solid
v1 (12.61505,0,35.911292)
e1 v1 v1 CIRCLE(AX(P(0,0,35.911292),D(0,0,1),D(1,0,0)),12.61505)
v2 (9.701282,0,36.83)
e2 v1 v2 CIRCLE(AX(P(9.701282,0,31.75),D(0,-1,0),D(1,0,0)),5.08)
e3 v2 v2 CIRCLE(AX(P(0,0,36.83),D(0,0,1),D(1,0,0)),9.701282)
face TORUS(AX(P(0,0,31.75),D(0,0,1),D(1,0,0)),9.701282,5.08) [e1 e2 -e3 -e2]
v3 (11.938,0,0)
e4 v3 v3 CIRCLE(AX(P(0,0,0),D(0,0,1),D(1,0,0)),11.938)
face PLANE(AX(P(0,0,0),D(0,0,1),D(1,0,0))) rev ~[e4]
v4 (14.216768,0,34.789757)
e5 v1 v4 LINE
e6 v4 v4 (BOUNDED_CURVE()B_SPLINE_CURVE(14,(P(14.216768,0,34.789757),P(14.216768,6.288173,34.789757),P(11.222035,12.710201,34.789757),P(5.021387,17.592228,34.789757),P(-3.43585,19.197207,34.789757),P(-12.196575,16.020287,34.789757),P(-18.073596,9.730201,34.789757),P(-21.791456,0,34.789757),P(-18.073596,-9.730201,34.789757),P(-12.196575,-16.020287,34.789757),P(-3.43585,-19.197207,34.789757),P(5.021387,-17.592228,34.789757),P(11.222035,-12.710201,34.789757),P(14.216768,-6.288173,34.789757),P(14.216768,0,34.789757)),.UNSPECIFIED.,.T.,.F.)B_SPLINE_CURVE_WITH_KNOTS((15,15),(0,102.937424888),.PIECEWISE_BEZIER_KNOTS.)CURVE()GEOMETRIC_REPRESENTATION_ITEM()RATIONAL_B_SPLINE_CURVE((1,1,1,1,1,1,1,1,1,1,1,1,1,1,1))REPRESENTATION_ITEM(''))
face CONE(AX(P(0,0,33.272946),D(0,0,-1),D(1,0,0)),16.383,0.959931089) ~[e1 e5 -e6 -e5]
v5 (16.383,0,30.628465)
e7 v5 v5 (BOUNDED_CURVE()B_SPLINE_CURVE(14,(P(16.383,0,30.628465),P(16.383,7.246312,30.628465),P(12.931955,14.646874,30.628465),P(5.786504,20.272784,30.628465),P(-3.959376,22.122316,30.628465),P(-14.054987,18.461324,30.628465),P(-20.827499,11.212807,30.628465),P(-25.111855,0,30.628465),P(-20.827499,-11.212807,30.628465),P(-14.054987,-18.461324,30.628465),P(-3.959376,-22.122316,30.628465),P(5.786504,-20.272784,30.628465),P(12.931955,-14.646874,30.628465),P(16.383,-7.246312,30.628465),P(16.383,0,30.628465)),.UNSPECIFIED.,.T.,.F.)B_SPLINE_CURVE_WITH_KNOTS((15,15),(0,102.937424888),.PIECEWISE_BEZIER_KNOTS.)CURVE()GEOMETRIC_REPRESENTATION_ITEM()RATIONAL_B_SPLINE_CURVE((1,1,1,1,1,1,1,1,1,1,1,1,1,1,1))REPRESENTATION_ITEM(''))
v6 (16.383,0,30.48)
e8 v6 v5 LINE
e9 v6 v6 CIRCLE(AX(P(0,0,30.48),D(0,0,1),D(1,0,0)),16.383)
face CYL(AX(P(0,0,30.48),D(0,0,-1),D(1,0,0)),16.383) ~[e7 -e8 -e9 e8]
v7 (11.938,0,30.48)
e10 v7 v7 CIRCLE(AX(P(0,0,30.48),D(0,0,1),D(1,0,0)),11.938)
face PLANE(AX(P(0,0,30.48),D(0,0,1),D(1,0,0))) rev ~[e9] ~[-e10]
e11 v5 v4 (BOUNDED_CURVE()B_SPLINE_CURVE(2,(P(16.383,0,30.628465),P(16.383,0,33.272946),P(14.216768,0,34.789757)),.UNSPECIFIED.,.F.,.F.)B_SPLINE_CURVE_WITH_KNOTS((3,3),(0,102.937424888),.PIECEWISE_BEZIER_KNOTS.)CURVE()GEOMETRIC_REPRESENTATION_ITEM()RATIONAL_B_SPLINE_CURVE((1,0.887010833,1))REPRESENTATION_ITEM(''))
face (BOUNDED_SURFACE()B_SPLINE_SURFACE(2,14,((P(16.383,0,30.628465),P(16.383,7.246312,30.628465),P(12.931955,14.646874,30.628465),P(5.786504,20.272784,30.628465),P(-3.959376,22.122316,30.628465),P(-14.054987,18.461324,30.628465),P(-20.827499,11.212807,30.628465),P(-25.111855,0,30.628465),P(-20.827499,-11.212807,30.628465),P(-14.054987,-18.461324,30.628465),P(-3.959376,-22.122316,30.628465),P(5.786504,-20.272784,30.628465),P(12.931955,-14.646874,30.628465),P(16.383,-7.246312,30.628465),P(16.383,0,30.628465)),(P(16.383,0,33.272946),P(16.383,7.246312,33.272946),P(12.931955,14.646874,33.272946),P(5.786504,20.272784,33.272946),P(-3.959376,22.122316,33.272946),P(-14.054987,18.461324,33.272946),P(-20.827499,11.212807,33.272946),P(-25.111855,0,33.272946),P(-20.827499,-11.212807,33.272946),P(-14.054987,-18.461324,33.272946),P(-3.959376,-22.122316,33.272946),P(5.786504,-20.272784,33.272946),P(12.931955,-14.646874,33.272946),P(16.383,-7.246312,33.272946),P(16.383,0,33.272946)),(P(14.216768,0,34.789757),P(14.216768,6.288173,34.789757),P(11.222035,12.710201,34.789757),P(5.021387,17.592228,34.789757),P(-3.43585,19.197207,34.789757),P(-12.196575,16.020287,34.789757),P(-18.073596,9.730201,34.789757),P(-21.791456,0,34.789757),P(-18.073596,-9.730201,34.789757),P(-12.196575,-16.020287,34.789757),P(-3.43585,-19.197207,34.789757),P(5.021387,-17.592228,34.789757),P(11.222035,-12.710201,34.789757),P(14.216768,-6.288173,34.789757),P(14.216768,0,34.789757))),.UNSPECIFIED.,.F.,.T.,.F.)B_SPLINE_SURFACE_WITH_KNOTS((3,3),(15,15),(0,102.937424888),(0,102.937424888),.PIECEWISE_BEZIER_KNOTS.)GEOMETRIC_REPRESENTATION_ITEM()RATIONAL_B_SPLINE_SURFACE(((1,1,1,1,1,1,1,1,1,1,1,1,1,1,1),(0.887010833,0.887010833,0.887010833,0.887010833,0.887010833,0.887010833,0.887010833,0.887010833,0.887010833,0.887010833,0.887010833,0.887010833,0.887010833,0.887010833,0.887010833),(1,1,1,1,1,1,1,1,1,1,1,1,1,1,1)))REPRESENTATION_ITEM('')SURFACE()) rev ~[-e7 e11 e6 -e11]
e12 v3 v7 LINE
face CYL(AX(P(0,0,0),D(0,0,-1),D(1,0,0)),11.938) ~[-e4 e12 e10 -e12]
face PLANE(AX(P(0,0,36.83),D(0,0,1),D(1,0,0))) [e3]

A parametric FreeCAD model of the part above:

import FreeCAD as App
import Part
import Sketcher

V = App.Vector
Q = App.Units.Quantity


def edges_at(feature, points):
    """Names of the edges that pass closest to the given points."""
    edges = feature.Shape.Edges
    near = lambda p: min(range(len(edges)), key=lambda i: edges[i].distToShape(Part.Vertex(*p))[0])
    return sorted({f"Edge{near(p) + 1}" for p in points})

doc = App.newDocument("Part")
body = doc.addObject("PartDesign::Body", "Body")

sketch1 = body.newObject("Sketcher::SketchObject", "Sketch")
sketch1.AttachmentSupport = (doc.getObject("XY_Plane"), [""])
sketch1.MapMode = "FlatFace"
sketch1.addGeometry(Part.Circle(V(0, 0, 0), V(0, 0, 1), 12), False)
sketch1.addConstraint(Sketcher.Constraint("Coincident", 0, 3, -1, 1))
sketch1.addConstraint(Sketcher.Constraint("Diameter", 0, Q("0.94 in")))
pad1 = body.newObject("PartDesign::Pad", "Pad")
pad1.Profile = sketch1
pad1.Length = Q("1.2 in")

sketch2 = body.newObject("Sketcher::SketchObject", "Sketch001")
sketch2.AttachmentSupport = (doc.getObject("XY_Plane"), [""])
sketch2.MapMode = "FlatFace"
sketch2.AttachmentOffset = App.Placement(V(0, 0, 1.2 * 25.4), App.Rotation())
sketch2.addGeometry(Part.Circle(V(0, 0, 0), V(0, 0, 1), 16), False)
sketch2.addConstraint(Sketcher.Constraint("Coincident", 0, 3, -1, 1))
sketch2.addConstraint(Sketcher.Constraint("Diameter", 0, Q("1.29 in")))
pad2 = body.newObject("PartDesign::Pad", "Pad001")
pad2.Profile = sketch2
pad2.Length = Q("0.25 in")
doc.recompute()

chamfer = body.newObject("PartDesign::Chamfer", "Chamfer")
chamfer.Base = (pad2, edges_at(pad2, [(-16.383, 0, 36.83)]))
chamfer.ChamferType = "Two distances"
chamfer.Size = Q("0.2 in")
chamfer.Size2 = 3.557054
chamfer.FlipDirection = True
doc.recompute()

fillet = body.newObject("PartDesign::Fillet", "Fillet")
fillet.Base = (chamfer, edges_at(chamfer, [(-11.303, 0, 36.83), (-16.383, 0, 33.273)]))
fillet.Radius = Q("0.2 in")

doc.recompute()
